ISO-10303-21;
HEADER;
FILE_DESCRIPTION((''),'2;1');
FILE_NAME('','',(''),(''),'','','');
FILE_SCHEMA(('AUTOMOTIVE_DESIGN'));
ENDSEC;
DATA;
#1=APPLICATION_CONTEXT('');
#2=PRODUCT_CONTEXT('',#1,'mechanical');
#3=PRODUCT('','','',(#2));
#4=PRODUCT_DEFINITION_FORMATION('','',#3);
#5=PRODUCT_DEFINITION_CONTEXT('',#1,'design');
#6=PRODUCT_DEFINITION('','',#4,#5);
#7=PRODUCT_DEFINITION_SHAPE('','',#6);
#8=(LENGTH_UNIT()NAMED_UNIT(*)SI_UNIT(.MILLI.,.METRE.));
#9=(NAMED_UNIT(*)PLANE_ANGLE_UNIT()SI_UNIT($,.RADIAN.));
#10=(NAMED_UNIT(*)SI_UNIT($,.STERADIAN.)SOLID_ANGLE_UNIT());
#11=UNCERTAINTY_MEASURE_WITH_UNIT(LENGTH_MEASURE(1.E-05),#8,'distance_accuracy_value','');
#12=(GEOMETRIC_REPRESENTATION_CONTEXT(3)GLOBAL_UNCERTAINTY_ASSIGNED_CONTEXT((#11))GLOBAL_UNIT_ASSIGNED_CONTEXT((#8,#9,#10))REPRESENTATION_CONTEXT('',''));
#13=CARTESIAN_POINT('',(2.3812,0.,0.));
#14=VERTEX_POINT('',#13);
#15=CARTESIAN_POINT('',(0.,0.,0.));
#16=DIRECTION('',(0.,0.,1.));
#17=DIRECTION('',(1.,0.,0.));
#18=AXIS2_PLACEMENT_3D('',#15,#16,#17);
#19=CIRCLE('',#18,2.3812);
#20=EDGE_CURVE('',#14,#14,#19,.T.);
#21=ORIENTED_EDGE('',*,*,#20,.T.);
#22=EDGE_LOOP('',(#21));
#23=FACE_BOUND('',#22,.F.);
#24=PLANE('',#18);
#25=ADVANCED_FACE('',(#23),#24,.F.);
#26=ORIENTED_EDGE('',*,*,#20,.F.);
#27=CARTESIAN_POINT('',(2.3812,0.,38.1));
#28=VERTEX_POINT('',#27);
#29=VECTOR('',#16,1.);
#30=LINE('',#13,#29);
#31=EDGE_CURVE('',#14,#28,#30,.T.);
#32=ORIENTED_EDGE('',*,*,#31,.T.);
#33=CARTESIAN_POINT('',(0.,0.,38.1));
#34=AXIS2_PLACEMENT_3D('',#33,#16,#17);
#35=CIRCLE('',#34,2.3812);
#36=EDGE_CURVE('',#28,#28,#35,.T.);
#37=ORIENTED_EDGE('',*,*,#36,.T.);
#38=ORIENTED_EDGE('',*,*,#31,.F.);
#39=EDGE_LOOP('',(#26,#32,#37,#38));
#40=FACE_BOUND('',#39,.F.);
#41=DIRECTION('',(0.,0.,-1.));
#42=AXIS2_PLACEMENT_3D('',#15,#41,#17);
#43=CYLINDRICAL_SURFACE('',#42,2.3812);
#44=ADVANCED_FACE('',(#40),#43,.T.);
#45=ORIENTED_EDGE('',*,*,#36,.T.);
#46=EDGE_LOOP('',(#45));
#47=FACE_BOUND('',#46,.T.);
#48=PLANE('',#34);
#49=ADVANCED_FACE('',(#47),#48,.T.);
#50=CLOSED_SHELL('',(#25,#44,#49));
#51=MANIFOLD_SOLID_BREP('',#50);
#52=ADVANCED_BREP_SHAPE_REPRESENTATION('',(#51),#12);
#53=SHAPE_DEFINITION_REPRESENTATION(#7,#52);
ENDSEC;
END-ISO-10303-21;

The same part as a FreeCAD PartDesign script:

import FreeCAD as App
import Part
import Sketcher
Q = App.Units.Quantity

doc = App.newDocument("Part")
body = doc.addObject("PartDesign::Body", "Body")

sketch1 = doc.addObject("Sketcher::SketchObject", "Sketch")
body.addObject(sketch1)
sketch1.AttachmentSupport = (doc.XY_Plane, [""])
sketch1.MapMode = "FlatFace"
sketch1.addGeometry(Part.Circle(App.Vector(0, 0, 0), App.Vector(0, 0, 1), 2.4), False)
sketch1.addConstraint([
    Sketcher.Constraint("Coincident", 0, 3, -1, 1),
    Sketcher.Constraint("Diameter", 0, Q("0.1875 in")),
])
pad1 = doc.addObject("PartDesign::Pad", "Pad")
body.addObject(pad1)
pad1.Profile = sketch1
pad1.Length = Q("1.5 in")

doc.recompute()
